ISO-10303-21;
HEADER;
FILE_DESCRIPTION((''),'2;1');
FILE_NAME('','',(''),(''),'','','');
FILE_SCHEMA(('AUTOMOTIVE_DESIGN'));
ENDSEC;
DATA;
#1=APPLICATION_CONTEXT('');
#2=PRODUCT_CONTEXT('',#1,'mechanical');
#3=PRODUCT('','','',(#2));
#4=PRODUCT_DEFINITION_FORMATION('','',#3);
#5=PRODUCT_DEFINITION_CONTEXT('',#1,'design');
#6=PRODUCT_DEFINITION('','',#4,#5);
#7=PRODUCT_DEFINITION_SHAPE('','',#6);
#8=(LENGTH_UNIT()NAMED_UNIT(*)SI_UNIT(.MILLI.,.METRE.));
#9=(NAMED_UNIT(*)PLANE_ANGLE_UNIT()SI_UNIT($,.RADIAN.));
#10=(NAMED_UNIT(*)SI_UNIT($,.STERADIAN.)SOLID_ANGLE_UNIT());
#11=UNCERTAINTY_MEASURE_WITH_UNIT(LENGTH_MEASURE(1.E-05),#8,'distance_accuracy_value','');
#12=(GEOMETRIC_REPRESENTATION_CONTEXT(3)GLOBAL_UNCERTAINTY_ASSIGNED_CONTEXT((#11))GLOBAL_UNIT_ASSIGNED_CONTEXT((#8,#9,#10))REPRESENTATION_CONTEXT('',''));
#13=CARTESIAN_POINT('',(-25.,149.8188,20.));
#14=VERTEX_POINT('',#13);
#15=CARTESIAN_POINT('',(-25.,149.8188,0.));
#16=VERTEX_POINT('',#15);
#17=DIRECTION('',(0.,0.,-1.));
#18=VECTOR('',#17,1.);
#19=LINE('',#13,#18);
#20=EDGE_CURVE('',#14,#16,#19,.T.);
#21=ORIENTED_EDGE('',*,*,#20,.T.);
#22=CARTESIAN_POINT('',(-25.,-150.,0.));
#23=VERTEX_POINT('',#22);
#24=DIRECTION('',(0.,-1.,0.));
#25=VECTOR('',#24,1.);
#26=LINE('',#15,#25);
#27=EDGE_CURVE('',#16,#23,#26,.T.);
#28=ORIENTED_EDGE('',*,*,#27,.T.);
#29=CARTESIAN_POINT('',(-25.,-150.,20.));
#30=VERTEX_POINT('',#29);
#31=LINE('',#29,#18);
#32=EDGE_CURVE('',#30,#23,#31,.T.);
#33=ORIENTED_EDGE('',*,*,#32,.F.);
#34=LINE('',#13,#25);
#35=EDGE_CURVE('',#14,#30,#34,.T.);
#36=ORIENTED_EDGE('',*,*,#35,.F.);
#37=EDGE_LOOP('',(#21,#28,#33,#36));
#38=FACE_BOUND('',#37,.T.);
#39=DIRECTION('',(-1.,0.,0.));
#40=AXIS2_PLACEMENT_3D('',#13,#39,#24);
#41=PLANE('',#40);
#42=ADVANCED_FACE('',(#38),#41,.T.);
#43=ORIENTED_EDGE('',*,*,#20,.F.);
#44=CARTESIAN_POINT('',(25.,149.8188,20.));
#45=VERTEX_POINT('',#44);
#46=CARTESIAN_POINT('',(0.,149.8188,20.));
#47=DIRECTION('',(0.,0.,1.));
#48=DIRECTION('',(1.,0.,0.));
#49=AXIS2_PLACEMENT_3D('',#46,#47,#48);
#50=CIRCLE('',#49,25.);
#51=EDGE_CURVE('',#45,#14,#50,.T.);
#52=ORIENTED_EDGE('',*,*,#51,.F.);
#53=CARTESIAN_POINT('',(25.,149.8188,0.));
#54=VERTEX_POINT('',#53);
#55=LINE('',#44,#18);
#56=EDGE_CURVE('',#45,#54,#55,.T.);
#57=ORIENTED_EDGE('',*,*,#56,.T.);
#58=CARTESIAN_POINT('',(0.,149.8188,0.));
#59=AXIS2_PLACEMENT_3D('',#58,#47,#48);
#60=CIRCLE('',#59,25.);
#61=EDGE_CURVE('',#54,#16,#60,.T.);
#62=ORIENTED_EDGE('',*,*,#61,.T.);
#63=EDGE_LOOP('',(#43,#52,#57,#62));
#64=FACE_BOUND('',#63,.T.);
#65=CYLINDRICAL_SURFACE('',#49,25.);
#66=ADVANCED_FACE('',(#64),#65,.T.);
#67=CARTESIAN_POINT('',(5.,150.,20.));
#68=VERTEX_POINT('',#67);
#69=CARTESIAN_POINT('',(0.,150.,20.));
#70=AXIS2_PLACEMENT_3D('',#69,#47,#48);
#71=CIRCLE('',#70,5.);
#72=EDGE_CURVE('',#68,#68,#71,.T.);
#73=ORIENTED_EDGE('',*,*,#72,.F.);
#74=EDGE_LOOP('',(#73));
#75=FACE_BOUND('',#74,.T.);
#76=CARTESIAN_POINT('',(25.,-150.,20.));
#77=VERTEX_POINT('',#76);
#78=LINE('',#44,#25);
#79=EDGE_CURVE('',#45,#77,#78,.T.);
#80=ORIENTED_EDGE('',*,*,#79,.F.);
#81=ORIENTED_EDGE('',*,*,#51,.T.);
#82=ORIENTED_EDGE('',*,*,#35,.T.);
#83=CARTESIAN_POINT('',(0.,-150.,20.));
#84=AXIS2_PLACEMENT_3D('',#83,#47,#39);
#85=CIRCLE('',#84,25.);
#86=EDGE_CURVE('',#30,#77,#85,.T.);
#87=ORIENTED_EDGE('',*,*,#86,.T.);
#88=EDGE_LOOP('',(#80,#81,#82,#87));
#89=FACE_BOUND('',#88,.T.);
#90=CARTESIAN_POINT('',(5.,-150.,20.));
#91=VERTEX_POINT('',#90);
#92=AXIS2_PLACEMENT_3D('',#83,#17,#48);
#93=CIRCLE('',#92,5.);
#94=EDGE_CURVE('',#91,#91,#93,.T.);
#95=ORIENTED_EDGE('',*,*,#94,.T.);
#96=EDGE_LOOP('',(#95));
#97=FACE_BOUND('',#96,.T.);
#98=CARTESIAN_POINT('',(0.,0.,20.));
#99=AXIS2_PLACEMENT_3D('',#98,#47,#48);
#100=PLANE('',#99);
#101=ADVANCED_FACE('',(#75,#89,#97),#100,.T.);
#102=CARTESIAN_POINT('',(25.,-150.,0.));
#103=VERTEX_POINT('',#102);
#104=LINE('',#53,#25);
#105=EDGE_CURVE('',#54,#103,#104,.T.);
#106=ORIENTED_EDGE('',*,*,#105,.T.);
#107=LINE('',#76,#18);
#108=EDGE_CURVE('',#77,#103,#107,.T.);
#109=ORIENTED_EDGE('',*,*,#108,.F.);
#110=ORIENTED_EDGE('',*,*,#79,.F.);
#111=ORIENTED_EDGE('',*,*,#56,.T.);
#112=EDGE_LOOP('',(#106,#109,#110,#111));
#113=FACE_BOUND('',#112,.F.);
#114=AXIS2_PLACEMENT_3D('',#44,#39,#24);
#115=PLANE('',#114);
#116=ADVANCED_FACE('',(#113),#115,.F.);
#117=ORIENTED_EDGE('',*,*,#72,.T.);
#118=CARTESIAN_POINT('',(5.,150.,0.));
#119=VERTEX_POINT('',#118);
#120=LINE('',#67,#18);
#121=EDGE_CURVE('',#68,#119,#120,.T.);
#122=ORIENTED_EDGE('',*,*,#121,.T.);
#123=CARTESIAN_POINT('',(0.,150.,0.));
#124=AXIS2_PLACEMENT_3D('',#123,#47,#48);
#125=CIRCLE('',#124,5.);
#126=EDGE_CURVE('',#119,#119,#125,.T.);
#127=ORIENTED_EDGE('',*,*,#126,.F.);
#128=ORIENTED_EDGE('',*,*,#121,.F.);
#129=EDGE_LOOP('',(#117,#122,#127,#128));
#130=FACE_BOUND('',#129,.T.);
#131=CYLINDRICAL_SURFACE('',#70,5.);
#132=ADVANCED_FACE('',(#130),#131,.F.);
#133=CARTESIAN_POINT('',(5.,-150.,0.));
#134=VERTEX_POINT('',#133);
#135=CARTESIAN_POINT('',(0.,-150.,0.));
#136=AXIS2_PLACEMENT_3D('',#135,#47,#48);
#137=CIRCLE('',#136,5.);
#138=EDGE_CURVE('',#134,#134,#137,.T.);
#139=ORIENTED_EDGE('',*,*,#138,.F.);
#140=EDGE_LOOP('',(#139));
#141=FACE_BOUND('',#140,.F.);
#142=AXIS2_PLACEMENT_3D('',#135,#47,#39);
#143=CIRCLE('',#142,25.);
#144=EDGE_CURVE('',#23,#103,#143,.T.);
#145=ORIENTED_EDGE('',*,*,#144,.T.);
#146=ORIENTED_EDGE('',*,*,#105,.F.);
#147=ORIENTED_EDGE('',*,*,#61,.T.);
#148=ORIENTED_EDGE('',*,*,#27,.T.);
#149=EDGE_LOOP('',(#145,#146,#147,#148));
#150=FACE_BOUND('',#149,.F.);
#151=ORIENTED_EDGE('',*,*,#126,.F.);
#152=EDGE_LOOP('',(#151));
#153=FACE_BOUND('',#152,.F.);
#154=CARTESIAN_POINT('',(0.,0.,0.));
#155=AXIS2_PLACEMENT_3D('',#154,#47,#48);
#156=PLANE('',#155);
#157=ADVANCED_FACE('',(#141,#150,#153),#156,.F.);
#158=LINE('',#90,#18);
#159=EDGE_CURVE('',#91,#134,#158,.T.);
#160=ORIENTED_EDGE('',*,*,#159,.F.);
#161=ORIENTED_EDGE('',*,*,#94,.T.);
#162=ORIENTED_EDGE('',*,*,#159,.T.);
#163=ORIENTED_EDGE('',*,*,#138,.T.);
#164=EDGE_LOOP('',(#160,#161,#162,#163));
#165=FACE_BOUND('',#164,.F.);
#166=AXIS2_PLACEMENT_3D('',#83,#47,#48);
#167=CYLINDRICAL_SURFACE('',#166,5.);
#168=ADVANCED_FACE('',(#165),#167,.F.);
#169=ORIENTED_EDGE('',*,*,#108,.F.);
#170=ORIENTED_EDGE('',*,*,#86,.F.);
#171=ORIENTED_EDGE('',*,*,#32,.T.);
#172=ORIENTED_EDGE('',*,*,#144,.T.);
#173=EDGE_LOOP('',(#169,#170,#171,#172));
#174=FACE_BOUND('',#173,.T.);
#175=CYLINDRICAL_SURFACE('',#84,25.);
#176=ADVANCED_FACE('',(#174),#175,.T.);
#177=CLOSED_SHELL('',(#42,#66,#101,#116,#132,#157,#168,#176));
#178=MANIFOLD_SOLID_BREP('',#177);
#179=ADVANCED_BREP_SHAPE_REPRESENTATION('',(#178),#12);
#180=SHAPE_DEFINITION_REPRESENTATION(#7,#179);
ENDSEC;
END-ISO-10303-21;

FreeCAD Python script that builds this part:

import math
import FreeCAD as App
import Part
import Sketcher
Q = App.Units.Quantity

doc = App.newDocument("Part")
body = doc.addObject("PartDesign::Body", "Body")

sketch1 = body.newObject("Sketcher::SketchObject", "Sketch")
sketch1.AttachmentSupport = (doc.getObject("XY_Plane"), [""])
sketch1.MapMode = "FlatFace"
sketch1.addGeometry([
    Part.LineSegment(App.Vector(-7.5, 170, 0), App.Vector(-7.5, -170, 0)),
    Part.LineSegment(App.Vector(-7.5, -170, 0), App.Vector(7.5, -170, 0)),
    Part.LineSegment(App.Vector(7.5, -170, 0), App.Vector(7.5, 170, 0)),
    Part.LineSegment(App.Vector(7.5, 170, 0), App.Vector(-7.5, 170, 0)),
], False)
sketch1.addConstraint([
    Sketcher.Constraint("Coincident", 0, 2, 1, 1),
    Sketcher.Constraint("Coincident", 1, 2, 2, 1),
    Sketcher.Constraint("Coincident", 2, 2, 3, 1),
    Sketcher.Constraint("Coincident", 3, 2, 0, 1),
    Sketcher.Constraint("Vertical", 0),
    Sketcher.Constraint("Horizontal", 1),
    Sketcher.Constraint("Vertical", 2),
    Sketcher.Constraint("Horizontal", 3),
    Sketcher.Constraint("Symmetric", 0, 2, 2, 2, -1, 1),
    Sketcher.Constraint("DistanceY", 0, 2, -1, 1, Q("170 mm")),
    Sketcher.Constraint("DistanceX", 0, 2, -1, 1, Q("7.5 mm")),
])
pad1 = body.newObject("PartDesign::Pad", "Pad")
pad1.Profile = sketch1
pad1.Length = 20

sketch2 = body.newObject("Sketcher::SketchObject", "Sketch001")
sketch2.AttachmentSupport = (doc.getObject("XY_Plane"), [""])
sketch2.MapMode = "FlatFace"
sketch2.AttachmentOffset = App.Placement(App.Vector(0, 0, 20), App.Rotation())
sketch2.addGeometry([
    Part.Circle(App.Vector(0, 150, 0), App.Vector(0, 0, 1), 5),
    Part.Circle(App.Vector(0, -150, 0), App.Vector(0, 0, 1), 5),
], False)
sketch2.addConstraint([
    Sketcher.Constraint("Equal", 0, 1),
    Sketcher.Constraint("Symmetric", 0, 3, 1, 3, -1, 1),
    Sketcher.Constraint("PointOnObject", 0, 3, -2),
    Sketcher.Constraint("Diameter", 0, Q("10 mm")),
    Sketcher.Constraint("DistanceY", -1, 1, 0, 3, Q("150 mm")),
])
pocket1 = body.newObject("PartDesign::Pocket", "Pocket")
pocket1.Profile = sketch2
pocket1.Length = 180

sketch3 = body.newObject("Sketcher::SketchObject", "Sketch002")
sketch3.AttachmentSupport = (doc.getObject("XY_Plane"), [""])
sketch3.MapMode = "FlatFace"
sketch3.AttachmentOffset = App.Placement(App.Vector(0, 0, 20), App.Rotation())
sketch3.addGeometry([
    Part.LineSegment(App.Vector(25, -150, 0), App.Vector(25, 149.8188, 0)),
    Part.ArcOfCircle(Part.Circle(App.Vector(0, 149.8188, 0), App.Vector(0, 0, 1), 25), math.radians(0), math.radians(180)),
    Part.LineSegment(App.Vector(-25, 149.8188, 0), App.Vector(-25, -150, 0)),
    Part.ArcOfCircle(Part.Circle(App.Vector(0, -150, 0), App.Vector(0, 0, 1), 25), math.radians(180), math.radians(360)),
    Part.Circle(App.Vector(0, -150, 0), App.Vector(0, 0, 1), 5),
], False)
sketch3.addConstraint([
    Sketcher.Constraint("Tangent", 0, 2, 1, 1),
    Sketcher.Constraint("Tangent", 1, 2, 2, 1),
    Sketcher.Constraint("Tangent", 2, 2, 3, 1),
    Sketcher.Constraint("Tangent", 3, 2, 0, 1),
    Sketcher.Constraint("Vertical", 0),
    Sketcher.Constraint("Vertical", 2),
    Sketcher.Constraint("Coincident", 4, 3, 3, 3),
    Sketcher.Constraint("PointOnObject", 1, 3, -2),
    Sketcher.Constraint("Radius", 1, Q("25 mm")),
    Sketcher.Constraint("Diameter", 4, Q("10 mm")),
    Sketcher.Constraint("DistanceY", 3, 3, -1, 1, Q("150 mm")),
    Sketcher.Constraint("DistanceY", 0, 1, 0, 2, Q("299.8188 mm")),
])
pad2 = body.newObject("PartDesign::Pad", "Pad001")
pad2.Profile = sketch3
pad2.Length = 20
pad2.Reversed = True
doc.recompute()

mirrored = body.newObject("PartDesign::Mirrored", "Mirrored")
mirrored.Originals = [pocket1]
mirrored.MirrorPlane = (doc.getObject("XZ_Plane"), [""])
body.Tip = mirrored

doc.recompute()
